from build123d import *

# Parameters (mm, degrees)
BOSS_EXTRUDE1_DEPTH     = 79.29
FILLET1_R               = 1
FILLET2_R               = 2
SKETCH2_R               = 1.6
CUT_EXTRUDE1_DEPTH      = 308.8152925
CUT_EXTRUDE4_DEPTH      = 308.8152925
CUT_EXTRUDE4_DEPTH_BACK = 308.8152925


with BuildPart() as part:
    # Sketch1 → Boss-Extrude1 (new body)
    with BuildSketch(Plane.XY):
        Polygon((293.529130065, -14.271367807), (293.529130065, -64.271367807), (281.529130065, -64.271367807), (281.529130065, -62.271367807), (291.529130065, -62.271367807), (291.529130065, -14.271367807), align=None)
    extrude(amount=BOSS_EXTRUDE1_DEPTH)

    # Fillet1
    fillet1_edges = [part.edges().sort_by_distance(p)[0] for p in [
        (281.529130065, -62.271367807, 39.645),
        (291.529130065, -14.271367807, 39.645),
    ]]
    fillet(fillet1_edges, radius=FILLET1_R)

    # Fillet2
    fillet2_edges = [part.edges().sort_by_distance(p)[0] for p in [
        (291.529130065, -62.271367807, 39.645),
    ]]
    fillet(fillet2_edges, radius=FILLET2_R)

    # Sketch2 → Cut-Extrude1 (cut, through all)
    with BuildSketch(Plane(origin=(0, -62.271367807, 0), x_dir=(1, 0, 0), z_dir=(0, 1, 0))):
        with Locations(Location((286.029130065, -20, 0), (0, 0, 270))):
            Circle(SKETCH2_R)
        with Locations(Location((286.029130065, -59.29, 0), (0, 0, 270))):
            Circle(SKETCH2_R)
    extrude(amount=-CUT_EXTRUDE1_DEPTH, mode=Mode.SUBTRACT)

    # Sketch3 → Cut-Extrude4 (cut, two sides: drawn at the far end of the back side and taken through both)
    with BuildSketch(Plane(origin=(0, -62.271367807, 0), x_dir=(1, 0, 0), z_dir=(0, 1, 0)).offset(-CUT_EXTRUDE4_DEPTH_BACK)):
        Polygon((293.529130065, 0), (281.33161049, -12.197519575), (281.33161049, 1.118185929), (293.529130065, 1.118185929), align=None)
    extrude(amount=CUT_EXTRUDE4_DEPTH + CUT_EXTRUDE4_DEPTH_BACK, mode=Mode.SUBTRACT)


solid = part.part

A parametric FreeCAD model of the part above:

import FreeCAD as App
import Part
import Sketcher
from FreeCAD import Vector
Q = App.Units.Quantity


def edges_at(feature, points):
    """Names of the edges that pass closest to the given points."""
    edges = feature.Shape.Edges
    near = lambda p: min(range(len(edges)), key=lambda i: edges[i].distToShape(Part.Vertex(*p))[0])
    return sorted({f"Edge{near(p) + 1}" for p in points})

doc = App.newDocument("Part")
body = doc.addObject("PartDesign::Body", "Body")

sketch1 = body.newObject("Sketcher::SketchObject", "Sketch")
sketch1.AttachmentSupport = (doc.getObject("XY_Plane"), [""])
sketch1.MapMode = "FlatFace"
sketch1.addGeometry([
    Part.LineSegment(Vector(293.52913, -64.271368, 0), Vector(293.52913, -14.271368, 0)),
    Part.LineSegment(Vector(293.52913, -14.271368, 0), Vector(291.52913, -14.271368, 0)),
    Part.LineSegment(Vector(291.52913, -14.271368, 0), Vector(291.52913, -62.271368, 0)),
    Part.LineSegment(Vector(291.52913, -62.271368, 0), Vector(281.52913, -62.271368, 0)),
    Part.LineSegment(Vector(281.52913, -62.271368, 0), Vector(281.52913, -64.271368, 0)),
    Part.LineSegment(Vector(281.52913, -64.271368, 0), Vector(293.52913, -64.271368, 0)),
], False)
sketch1.addConstraint([
    Sketcher.Constraint("Coincident", 0, 2, 1, 1),
    Sketcher.Constraint("Coincident", 1, 2, 2, 1),
    Sketcher.Constraint("Coincident", 2, 2, 3, 1),
    Sketcher.Constraint("Coincident", 3, 2, 4, 1),
    Sketcher.Constraint("Coincident", 4, 2, 5, 1),
    Sketcher.Constraint("Coincident", 5, 2, 0, 1),
    Sketcher.Constraint("Vertical", 0),
    Sketcher.Constraint("Horizontal", 1),
    Sketcher.Constraint("Vertical", 2),
    Sketcher.Constraint("Horizontal", 3),
    Sketcher.Constraint("Vertical", 4),
    Sketcher.Constraint("Horizontal", 5),
    Sketcher.Constraint("Equal", 1, 4),
    Sketcher.Constraint("DistanceX", 1, 2, 1, 1, Q("2 mm")),
    Sketcher.Constraint("DistanceX", 3, 2, 3, 1, Q("10 mm")),
    Sketcher.Constraint("DistanceY", 0, 1, 0, 2, Q("50 mm")),
    Sketcher.Constraint("DistanceX", -1, 1, 0, 2, Q("293.52913 mm")),
    Sketcher.Constraint("DistanceY", 0, 2, -1, 1, Q("14.271368 mm")),
])
pad1 = body.newObject("PartDesign::Pad", "Pad")
pad1.Profile = sketch1
pad1.Length = 79.29
doc.recompute()

fillet = body.newObject("PartDesign::Fillet", "Fillet")
fillet.Base = (pad1, edges_at(pad1, [(281.529, -62.271, 39.645), (291.529, -14.271, 39.645)]))
fillet.Radius = 1
doc.recompute()

fillet2 = body.newObject("PartDesign::Fillet", "Fillet001")
fillet2.Base = (fillet, edges_at(fillet, [(291.529, -62.271, 39.645)]))
fillet2.Radius = 2

sketch2 = body.newObject("Sketcher::SketchObject", "Sketch001")
sketch2.AttachmentSupport = (doc.getObject("XZ_Plane"), [""])
sketch2.MapMode = "FlatFace"
sketch2.AttachmentOffset = App.Placement(Vector(0, 0, 62.271368), App.Rotation())
sketch2.addGeometry([
    Part.Circle(Vector(286.02913, 20, 0), Vector(0, 0, 1), 1.6),
    Part.Circle(Vector(286.02913, 59.29, 0), Vector(0, 0, 1), 1.6),
], False)
sketch2.addConstraint([
    Sketcher.Constraint("Equal", 0, 1),
    Sketcher.Constraint("Vertical", 0, 3, 1, 3),
    Sketcher.Constraint("Diameter", 0, Q("3.2 mm")),
    Sketcher.Constraint("DistanceY", -1, 1, 0, 3, Q("20 mm")),
    Sketcher.Constraint("DistanceY", -1, 1, 1, 3, Q("59.29 mm")),
    Sketcher.Constraint("DistanceX", -1, 1, 0, 3, Q("286.02913 mm")),
])
pocket1 = body.newObject("PartDesign::Pocket", "Pocket")
pocket1.Profile = sketch2
pocket1.Type = "ThroughAll"
pocket1.Reversed = True

sketch3 = body.newObject("Sketcher::SketchObject", "Sketch002")
sketch3.AttachmentSupport = (doc.getObject("XZ_Plane"), [""])
sketch3.MapMode = "FlatFace"
sketch3.AttachmentOffset = App.Placement(Vector(0, 0, 62.271368), App.Rotation())
sketch3.addGeometry([
    Part.LineSegment(Vector(281.33161, 12.19752, 0), Vector(293.52913, 0, 0)),
    Part.LineSegment(Vector(293.52913, 0, 0), Vector(293.52913, -1.118186, 0)),
    Part.LineSegment(Vector(293.52913, -1.118186, 0), Vector(281.33161, -1.118186, 0)),
    Part.LineSegment(Vector(281.33161, -1.118186, 0), Vector(281.33161, 12.19752, 0)),
], False)
sketch3.addConstraint([
    Sketcher.Constraint("Coincident", 0, 2, 1, 1),
    Sketcher.Constraint("Coincident", 1, 2, 2, 1),
    Sketcher.Constraint("Coincident", 2, 2, 3, 1),
    Sketcher.Constraint("Coincident", 3, 2, 0, 1),
    Sketcher.Constraint("Vertical", 1),
    Sketcher.Constraint("Horizontal", 2),
    Sketcher.Constraint("Vertical", 3),
    Sketcher.Constraint("PointOnObject", 0, 2, -1),
    Sketcher.Constraint("Angle", 0, Q("-45 deg")),
    Sketcher.Constraint("DistanceX", 2, 2, 2, 1, Q("12.19752 mm")),
    Sketcher.Constraint("DistanceY", 1, 2, 1, 1, Q("1.118186 mm")),
    Sketcher.Constraint("DistanceX", -1, 1, 0, 2, Q("293.52913 mm")),
])
pocket2 = body.newObject("PartDesign::Pocket", "Pocket001")
pocket2.Profile = sketch3
pocket2.Type = "ThroughAll"
pocket2.Midplane = True

doc.recompute()
